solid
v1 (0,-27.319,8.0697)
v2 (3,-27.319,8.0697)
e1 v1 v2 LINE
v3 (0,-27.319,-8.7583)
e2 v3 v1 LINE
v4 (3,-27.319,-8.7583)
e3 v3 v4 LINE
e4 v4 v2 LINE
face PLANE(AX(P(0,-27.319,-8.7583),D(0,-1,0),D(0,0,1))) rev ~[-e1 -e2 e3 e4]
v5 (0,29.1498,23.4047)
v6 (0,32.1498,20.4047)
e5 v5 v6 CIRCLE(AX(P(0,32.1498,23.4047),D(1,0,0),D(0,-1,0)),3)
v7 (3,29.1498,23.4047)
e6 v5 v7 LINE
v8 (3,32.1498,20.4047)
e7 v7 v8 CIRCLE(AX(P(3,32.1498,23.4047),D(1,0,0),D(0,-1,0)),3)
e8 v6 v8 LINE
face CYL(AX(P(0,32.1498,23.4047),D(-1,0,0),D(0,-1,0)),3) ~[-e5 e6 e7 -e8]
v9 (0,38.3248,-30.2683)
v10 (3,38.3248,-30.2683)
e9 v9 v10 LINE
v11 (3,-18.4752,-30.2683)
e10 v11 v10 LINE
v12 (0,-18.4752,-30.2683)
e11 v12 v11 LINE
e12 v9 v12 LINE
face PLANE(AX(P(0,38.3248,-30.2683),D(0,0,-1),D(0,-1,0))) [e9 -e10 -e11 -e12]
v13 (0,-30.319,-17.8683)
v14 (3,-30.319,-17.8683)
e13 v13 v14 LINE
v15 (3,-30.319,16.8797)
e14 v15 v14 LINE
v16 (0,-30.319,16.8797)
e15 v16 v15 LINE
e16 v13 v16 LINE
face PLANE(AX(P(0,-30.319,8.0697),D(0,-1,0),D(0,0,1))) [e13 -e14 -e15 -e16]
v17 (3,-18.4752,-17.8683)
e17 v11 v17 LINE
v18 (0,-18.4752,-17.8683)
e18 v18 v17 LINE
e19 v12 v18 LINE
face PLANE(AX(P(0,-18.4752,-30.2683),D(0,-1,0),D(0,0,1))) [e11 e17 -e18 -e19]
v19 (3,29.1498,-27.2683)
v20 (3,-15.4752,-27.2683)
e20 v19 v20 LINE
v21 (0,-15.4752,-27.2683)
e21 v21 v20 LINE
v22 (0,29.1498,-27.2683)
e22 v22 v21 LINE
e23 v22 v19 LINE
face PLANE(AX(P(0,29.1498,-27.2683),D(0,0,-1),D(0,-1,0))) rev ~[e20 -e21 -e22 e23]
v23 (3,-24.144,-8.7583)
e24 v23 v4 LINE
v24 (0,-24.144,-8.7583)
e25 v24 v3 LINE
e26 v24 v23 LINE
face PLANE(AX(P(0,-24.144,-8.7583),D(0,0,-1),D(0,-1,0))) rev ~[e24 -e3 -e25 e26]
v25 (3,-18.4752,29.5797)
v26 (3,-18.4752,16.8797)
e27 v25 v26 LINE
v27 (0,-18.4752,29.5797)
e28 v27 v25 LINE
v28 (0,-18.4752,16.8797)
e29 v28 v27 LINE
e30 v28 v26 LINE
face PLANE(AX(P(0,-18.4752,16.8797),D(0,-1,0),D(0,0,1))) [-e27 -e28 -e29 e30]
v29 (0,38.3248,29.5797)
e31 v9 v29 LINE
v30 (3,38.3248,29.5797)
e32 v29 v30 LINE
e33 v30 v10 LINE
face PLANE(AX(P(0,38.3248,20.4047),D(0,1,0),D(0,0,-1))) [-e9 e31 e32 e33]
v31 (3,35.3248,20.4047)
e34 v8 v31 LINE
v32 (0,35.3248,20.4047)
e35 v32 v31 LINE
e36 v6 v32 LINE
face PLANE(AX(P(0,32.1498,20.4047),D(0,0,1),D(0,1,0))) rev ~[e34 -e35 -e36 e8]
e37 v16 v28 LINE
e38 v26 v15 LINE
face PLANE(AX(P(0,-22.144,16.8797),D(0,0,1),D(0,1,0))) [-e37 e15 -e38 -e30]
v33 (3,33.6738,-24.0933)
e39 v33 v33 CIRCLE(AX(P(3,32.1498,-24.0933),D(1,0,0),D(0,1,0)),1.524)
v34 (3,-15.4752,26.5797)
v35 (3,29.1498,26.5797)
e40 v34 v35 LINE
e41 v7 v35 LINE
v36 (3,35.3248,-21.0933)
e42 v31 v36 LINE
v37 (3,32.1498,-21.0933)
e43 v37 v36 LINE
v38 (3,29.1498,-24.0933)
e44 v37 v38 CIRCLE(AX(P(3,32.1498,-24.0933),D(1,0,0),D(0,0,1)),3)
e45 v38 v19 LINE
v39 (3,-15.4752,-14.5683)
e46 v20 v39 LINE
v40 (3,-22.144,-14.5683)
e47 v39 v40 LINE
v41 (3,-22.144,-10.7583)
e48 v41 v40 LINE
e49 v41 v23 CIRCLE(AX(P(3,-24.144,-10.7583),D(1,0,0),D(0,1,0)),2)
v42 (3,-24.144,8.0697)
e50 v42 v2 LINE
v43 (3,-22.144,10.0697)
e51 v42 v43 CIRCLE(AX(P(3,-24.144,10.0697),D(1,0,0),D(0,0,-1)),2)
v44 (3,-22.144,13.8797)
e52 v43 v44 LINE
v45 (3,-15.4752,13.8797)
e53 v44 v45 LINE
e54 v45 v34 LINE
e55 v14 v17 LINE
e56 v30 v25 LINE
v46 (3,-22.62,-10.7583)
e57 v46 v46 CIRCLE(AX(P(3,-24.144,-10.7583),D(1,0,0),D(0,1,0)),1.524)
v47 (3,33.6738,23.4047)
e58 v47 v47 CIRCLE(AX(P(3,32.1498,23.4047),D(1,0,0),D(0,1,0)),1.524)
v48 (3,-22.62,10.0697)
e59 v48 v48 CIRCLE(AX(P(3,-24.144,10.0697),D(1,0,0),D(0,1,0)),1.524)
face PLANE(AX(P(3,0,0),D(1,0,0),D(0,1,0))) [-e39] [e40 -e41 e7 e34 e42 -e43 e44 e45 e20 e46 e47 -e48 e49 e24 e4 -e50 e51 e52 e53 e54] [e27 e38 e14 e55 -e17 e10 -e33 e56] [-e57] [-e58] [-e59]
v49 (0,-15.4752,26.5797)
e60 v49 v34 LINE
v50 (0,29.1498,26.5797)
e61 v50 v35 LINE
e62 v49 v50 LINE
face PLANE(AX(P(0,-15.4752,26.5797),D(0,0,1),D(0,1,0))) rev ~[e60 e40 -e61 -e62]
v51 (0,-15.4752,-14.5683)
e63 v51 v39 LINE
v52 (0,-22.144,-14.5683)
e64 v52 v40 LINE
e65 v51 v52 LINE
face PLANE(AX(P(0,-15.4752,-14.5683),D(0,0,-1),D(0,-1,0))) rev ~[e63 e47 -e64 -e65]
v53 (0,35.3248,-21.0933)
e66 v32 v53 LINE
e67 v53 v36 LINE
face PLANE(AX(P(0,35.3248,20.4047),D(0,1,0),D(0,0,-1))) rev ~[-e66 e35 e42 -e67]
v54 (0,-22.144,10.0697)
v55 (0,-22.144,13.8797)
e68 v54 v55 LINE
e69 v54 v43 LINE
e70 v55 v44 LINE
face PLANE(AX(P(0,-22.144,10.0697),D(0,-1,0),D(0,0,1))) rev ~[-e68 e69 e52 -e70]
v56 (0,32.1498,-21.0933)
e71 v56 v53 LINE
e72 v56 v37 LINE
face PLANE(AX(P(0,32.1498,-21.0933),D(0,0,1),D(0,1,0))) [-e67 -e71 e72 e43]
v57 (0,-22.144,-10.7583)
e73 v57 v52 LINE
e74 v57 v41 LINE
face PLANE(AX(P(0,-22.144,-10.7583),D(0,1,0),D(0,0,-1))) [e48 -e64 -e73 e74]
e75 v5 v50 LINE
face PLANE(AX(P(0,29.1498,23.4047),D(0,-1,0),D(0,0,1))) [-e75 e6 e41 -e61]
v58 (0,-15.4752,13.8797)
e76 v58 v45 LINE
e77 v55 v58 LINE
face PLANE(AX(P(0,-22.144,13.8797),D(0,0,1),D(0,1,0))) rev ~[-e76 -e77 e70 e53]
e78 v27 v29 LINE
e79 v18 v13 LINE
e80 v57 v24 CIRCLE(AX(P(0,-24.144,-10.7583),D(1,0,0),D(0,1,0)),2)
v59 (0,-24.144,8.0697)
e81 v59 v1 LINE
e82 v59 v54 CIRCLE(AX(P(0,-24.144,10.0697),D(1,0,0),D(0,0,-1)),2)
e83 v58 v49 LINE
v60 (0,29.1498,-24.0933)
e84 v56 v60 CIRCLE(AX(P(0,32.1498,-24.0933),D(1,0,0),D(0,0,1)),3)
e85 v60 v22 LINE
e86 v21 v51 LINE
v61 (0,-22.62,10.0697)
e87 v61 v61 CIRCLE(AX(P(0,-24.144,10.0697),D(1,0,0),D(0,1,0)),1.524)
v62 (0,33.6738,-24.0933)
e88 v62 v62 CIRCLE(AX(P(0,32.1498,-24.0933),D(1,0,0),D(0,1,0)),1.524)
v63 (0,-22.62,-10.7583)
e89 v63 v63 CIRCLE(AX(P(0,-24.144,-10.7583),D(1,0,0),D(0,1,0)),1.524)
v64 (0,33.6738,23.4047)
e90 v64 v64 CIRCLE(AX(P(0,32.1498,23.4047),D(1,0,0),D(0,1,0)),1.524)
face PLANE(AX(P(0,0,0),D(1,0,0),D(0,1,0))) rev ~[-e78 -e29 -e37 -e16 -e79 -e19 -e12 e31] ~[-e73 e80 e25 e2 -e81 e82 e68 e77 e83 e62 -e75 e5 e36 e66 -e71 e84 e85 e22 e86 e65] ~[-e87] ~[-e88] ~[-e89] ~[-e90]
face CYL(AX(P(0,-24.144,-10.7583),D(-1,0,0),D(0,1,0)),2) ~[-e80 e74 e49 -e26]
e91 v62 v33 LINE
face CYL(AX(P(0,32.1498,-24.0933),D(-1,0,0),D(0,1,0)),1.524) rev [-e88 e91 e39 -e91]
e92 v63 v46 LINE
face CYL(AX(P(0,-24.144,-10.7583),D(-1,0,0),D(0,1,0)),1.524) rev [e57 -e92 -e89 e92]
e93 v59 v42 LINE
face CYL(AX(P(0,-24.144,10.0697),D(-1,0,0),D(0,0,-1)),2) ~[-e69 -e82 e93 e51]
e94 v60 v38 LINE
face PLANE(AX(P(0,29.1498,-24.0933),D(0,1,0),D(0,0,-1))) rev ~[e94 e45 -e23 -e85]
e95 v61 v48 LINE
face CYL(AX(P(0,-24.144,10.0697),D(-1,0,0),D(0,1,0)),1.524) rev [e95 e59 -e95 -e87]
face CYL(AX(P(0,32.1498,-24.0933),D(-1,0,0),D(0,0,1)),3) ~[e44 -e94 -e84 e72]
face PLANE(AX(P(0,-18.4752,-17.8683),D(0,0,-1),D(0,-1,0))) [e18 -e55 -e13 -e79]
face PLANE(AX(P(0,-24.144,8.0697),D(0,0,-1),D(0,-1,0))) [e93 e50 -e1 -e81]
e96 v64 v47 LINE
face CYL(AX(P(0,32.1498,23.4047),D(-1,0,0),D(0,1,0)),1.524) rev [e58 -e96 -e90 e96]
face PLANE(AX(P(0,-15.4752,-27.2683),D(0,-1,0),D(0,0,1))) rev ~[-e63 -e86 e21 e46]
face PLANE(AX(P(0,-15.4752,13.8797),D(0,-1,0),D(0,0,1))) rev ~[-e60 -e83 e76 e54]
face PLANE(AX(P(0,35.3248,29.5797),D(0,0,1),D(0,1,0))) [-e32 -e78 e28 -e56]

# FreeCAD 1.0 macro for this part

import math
import FreeCAD as App
import Part
import Sketcher
from FreeCAD import Vector
Q = App.Units.Quantity

doc = App.newDocument("Part")
body = doc.addObject("PartDesign::Body", "Body")

# Sketch on YZ plane
sketch1 = doc.addObject("Sketcher::SketchObject", "Sketch")
body.addObject(sketch1)
sketch1.AttachmentSupport = (doc.YZ_Plane, [""])
sketch1.MapMode = "FlatFace"
sketch1.addGeometry([
    Part.LineSegment(Vector(38.3, 29.6, 0), Vector(-18.5, 29.6, 0)),  # 0
    Part.LineSegment(Vector(-18.5, 29.6, 0), Vector(-18.5, 16.9, 0)),  # 1
    Part.LineSegment(Vector(-18.5, 16.9, 0), Vector(-30.3, 16.9, 0)),  # 2
    Part.LineSegment(Vector(-30.3, 16.9, 0), Vector(-30.3, -17.9, 0)),  # 3
    Part.LineSegment(Vector(-30.3, -17.9, 0), Vector(-18.5, -17.9, 0)),  # 4
    Part.LineSegment(Vector(-18.5, -17.9, 0), Vector(-18.5, -30.3, 0)),  # 5
    Part.LineSegment(Vector(-18.5, -30.3, 0), Vector(38.3, -30.3, 0)),  # 6
    Part.LineSegment(Vector(38.3, -30.3, 0), Vector(38.3, 29.6, 0)),  # 7
    Part.LineSegment(Vector(35.3, 20.4, 0), Vector(35.3, -21.1, 0)),  # 8
    Part.LineSegment(Vector(35.3, -21.1, 0), Vector(32.1, -21.1, 0)),  # 9
    Part.ArcOfCircle(Part.Circle(Vector(32.1, -24.1, 0), Vector(0, 0, 1), 3), math.radians(90), math.radians(180)),  # 10
    Part.LineSegment(Vector(29.1, -24.1, 0), Vector(29.1, -27.3, 0)),  # 11
    Part.LineSegment(Vector(29.1, -27.3, 0), Vector(-15.5, -27.3, 0)),  # 12
    Part.LineSegment(Vector(-15.5, -27.3, 0), Vector(-15.5, -14.6, 0)),  # 13
    Part.LineSegment(Vector(-15.5, -14.6, 0), Vector(-22.1, -14.6, 0)),  # 14
    Part.LineSegment(Vector(-22.1, -14.6, 0), Vector(-22.1, -10.8, 0)),  # 15
    Part.ArcOfCircle(Part.Circle(Vector(-24.1, -10.8, 0), Vector(0, 0, 1), 2), math.radians(0), math.radians(90)),  # 16
    Part.LineSegment(Vector(-24.1, -8.8, 0), Vector(-27.3, -8.8, 0)),  # 17
    Part.LineSegment(Vector(-27.3, -8.8, 0), Vector(-27.3, 8.1, 0)),  # 18
    Part.LineSegment(Vector(-27.3, 8.1, 0), Vector(-24.1, 8.1, 0)),  # 19
    Part.ArcOfCircle(Part.Circle(Vector(-24.1, 10.1, 0), Vector(0, 0, 1), 2), math.radians(-90), math.radians(0)),  # 20
    Part.LineSegment(Vector(-22.1, 10.1, 0), Vector(-22.1, 13.9, 0)),  # 21
    Part.LineSegment(Vector(-22.1, 13.9, 0), Vector(-15.5, 13.9, 0)),  # 22
    Part.LineSegment(Vector(-15.5, 13.9, 0), Vector(-15.5, 26.6, 0)),  # 23
    Part.LineSegment(Vector(-15.5, 26.6, 0), Vector(29.1, 26.6, 0)),  # 24
    Part.LineSegment(Vector(29.1, 26.6, 0), Vector(29.1, 23.4, 0)),  # 25
    Part.ArcOfCircle(Part.Circle(Vector(32.1, 23.4, 0), Vector(0, 0, 1), 3), math.radians(180), math.radians(270)),  # 26
    Part.LineSegment(Vector(32.1, 20.4, 0), Vector(35.3, 20.4, 0)),  # 27
    Part.Circle(Vector(32.1, 23.4, 0), Vector(0, 0, 1), 1.5),  # 28
    Part.Circle(Vector(32.1, -24.1, 0), Vector(0, 0, 1), 1.5),  # 29
    Part.Circle(Vector(-24.1, 10.1, 0), Vector(0, 0, 1), 1.5),  # 30
    Part.Circle(Vector(-24.1, -10.8, 0), Vector(0, 0, 1), 1.5),  # 31
], False)
sketch1.addConstraint([
    Sketcher.Constraint("Coincident", 0, 2, 1, 1),
    Sketcher.Constraint("Coincident", 1, 2, 2, 1),
    Sketcher.Constraint("Coincident", 2, 2, 3, 1),
    Sketcher.Constraint("Coincident", 3, 2, 4, 1),
    Sketcher.Constraint("Coincident", 4, 2, 5, 1),
    Sketcher.Constraint("Coincident", 5, 2, 6, 1),
    Sketcher.Constraint("Coincident", 6, 2, 7, 1),
    Sketcher.Constraint("Coincident", 7, 2, 0, 1),
    Sketcher.Constraint("Coincident", 8, 2, 9, 1),
    Sketcher.Constraint("Tangent", 9, 2, 10, 1),
    Sketcher.Constraint("Tangent", 10, 2, 11, 1),
    Sketcher.Constraint("Coincident", 11, 2, 12, 1),
    Sketcher.Constraint("Coincident", 12, 2, 13, 1),
    Sketcher.Constraint("Coincident", 13, 2, 14, 1),
    Sketcher.Constraint("Coincident", 14, 2, 15, 1),
    Sketcher.Constraint("Tangent", 15, 2, 16, 1),
    Sketcher.Constraint("Tangent", 16, 2, 17, 1),
    Sketcher.Constraint("Coincident", 17, 2, 18, 1),
    Sketcher.Constraint("Coincident", 18, 2, 19, 1),
    Sketcher.Constraint("Tangent", 19, 2, 20, 1),
    Sketcher.Constraint("Tangent", 20, 2, 21, 1),
    Sketcher.Constraint("Coincident", 21, 2, 22, 1),
    Sketcher.Constraint("Coincident", 22, 2, 23, 1),
    Sketcher.Constraint("Coincident", 23, 2, 24, 1),
    Sketcher.Constraint("Coincident", 24, 2, 25, 1),
    Sketcher.Constraint("Tangent", 25, 2, 26, 1),
    Sketcher.Constraint("Tangent", 26, 2, 27, 1),
    Sketcher.Constraint("Coincident", 27, 2, 8, 1),
    Sketcher.Constraint("Horizontal", 0),
    Sketcher.Constraint("Vertical", 1),
    Sketcher.Constraint("Horizontal", 2),
    Sketcher.Constraint("Vertical", 3),
    Sketcher.Constraint("Horizontal", 4),
    Sketcher.Constraint("Vertical", 5),
    Sketcher.Constraint("Horizontal", 6),
    Sketcher.Constraint("Vertical", 7),
    Sketcher.Constraint("Vertical", 8),
    Sketcher.Constraint("Horizontal", 9),
    Sketcher.Constraint("Vertical", 11),
    Sketcher.Constraint("Horizontal", 12),
    Sketcher.Constraint("Vertical", 13),
    Sketcher.Constraint("Horizontal", 14),
    Sketcher.Constraint("Vertical", 15),
    Sketcher.Constraint("Horizontal", 17),
    Sketcher.Constraint("Vertical", 18),
    Sketcher.Constraint("Horizontal", 19),
    Sketcher.Constraint("Vertical", 21),
    Sketcher.Constraint("Horizontal", 22),
    Sketcher.Constraint("Vertical", 23),
    Sketcher.Constraint("Horizontal", 24),
    Sketcher.Constraint("Vertical", 25),
    Sketcher.Constraint("Horizontal", 27),
    Sketcher.Constraint("Coincident", 28, 3, 26, 3),
    Sketcher.Constraint("Coincident", 29, 3, 10, 3),
    Sketcher.Constraint("Coincident", 30, 3, 20, 3),
    Sketcher.Constraint("Coincident", 31, 3, 16, 3),
    Sketcher.Constraint("Equal", 16, 20),
    Sketcher.Constraint("Equal", 10, 26),
    Sketcher.Constraint("Equal", 28, 29),
    Sketcher.Constraint("Equal", 29, 30),
    Sketcher.Constraint("Equal", 30, 31),
    Sketcher.Constraint("Vertical", 16, 3, 20, 3),
    Sketcher.Constraint("Vertical", 10, 3, 26, 3),
    Sketcher.Constraint("Vertical", 1, 2, 4, 2),
    Sketcher.Constraint("Vertical", 13, 2, 22, 2),
    Sketcher.Constraint("Equal", 9, 17),
    Sketcher.Constraint("Equal", 27, 11),
    Sketcher.Constraint("Equal", 1, 13),
    Sketcher.Constraint("Equal", 15, 21),
    Sketcher.Constraint("Equal", 13, 23),
    Sketcher.Constraint("Equal", 11, 25),
    Sketcher.Constraint("Diameter", 28, Q("0.12 in")),
    Sketcher.Constraint("DistanceY", 1, 2, 1, 1, Q("0.5 in")),
    Sketcher.Constraint("DistanceY", 15, 1, 15, 2, Q("0.15 in")),
    Sketcher.Constraint("Radius", 10, Q("0.1181 in")),
    Sketcher.Constraint("DistanceX", 9, 2, 9, 1, Q("0.125 in")),
    Sketcher.Constraint("Radius", 16, 2.0),
    Sketcher.Constraint("DistanceY", 16, 3, 20, 3, Q("0.82 in")),
    Sketcher.Constraint("DistanceX", 2, 2, 2, 1, Q("0.4663 in")),
    Sketcher.Constraint("DistanceX", 12, 2, 12, 1, Q("1.7569 in")),
    Sketcher.Constraint("DistanceY", 5, 2, 5, 1, Q("0.4882 in")),
    Sketcher.Constraint("DistanceX", 0, 2, 0, 1, 56.8),
    Sketcher.Constraint("DistanceX", 14, 2, 14, 1, 6.6688),
    Sketcher.Constraint("DistanceY", 3, 2, 3, 1, 34.748),
    Sketcher.Constraint("DistanceX", 14, 2, -1, 1, Q("0.8718 in")),
    Sketcher.Constraint("DistanceY", -1, 1, 18, 2, Q("0.3177 in")),
    Sketcher.Constraint("DistanceY", 20, 3, 0, 2, Q("0.7681 in")),
    Sketcher.Constraint("DistanceX", 0, 2, 26, 3, Q("1.9931 in")),
])
pad1 = doc.addObject("PartDesign::Pad", "Pad")
body.addObject(pad1)
pad1.Profile = sketch1
pad1.Length = Q("0.1181102 in")

doc.recompute()
